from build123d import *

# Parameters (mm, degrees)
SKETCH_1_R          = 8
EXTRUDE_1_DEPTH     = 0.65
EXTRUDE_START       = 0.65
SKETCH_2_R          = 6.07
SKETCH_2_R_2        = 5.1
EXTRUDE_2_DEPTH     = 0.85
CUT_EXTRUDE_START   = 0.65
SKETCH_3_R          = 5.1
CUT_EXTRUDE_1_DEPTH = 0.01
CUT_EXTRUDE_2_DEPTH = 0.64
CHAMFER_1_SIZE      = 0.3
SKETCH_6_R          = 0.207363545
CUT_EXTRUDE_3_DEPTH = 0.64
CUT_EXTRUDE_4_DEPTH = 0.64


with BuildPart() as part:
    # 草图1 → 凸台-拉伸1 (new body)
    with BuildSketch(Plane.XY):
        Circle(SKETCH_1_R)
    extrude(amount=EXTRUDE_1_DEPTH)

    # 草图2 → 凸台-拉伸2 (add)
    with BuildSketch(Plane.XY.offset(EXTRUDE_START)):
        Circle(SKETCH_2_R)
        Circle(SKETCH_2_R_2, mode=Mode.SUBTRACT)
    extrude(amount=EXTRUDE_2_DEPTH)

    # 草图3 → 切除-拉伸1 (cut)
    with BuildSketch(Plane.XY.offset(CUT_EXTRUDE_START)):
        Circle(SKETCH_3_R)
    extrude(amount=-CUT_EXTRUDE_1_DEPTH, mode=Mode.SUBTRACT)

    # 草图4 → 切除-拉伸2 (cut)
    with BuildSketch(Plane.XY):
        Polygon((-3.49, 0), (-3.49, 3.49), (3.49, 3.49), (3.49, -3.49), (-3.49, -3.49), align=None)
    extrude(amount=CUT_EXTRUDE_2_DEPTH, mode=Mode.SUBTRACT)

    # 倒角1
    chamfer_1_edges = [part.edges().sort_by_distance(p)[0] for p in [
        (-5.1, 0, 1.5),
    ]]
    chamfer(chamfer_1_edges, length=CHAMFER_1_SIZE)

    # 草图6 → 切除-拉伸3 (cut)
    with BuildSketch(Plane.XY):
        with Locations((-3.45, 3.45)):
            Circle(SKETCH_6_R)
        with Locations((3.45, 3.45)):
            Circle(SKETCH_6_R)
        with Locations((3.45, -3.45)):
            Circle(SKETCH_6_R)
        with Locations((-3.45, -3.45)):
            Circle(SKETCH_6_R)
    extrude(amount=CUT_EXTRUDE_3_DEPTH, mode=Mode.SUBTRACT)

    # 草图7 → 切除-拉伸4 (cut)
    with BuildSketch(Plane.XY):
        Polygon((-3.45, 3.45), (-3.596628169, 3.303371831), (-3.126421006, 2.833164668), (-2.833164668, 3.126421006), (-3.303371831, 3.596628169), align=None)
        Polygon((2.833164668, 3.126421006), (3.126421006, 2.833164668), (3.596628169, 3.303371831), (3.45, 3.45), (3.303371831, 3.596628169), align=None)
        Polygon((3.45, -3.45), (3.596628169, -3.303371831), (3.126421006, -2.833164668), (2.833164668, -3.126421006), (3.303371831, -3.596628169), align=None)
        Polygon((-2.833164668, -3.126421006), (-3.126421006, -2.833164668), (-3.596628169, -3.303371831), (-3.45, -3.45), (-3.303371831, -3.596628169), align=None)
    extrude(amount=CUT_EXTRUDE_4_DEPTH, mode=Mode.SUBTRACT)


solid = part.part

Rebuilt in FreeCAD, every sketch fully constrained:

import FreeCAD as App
import Part
import Sketcher
Q = App.Units.Quantity


def edges_at(feature, points):
    """Names of the edges that pass closest to the given points."""
    edges = feature.Shape.Edges
    near = lambda p: min(range(len(edges)), key=lambda i: edges[i].distToShape(Part.Vertex(*p))[0])
    return sorted({f"Edge{near(p) + 1}" for p in points})


def add_polygon(sketch, points):
    """Adds a closed chain of lines whose ends are joined by coincident constraints."""
    first, n = sketch.GeometryCount, len(points)
    for a, b in zip(points, points[1:] + points[:1]):
        sketch.addGeometry(Part.LineSegment(App.Vector(*a, 0), App.Vector(*b, 0)), False)
    for i in range(n):
        sketch.addConstraint(Sketcher.Constraint("Coincident", first + i, 2, first + (i + 1) % n, 1))

doc = App.newDocument("Part")
params = doc.addObject("Spreadsheet::Sheet", "Params")
for row, (alias, value) in enumerate([
    ("sketch1_diameter", "16 mm"),
    ("pad1_length", "0.65 mm"),
    ("sketch2_diameter", "10.2 mm"),
    ("sketch2_diameter2", "12.14 mm"),
    ("pad2_length", "0.85 mm"),
    ("sketch3_diameter", "10.2 mm"),
    ("pocket1_length", "0.01 mm"),
    ("sketch4_width", "6.98 mm"),
    ("pocket2_length", "0.64 mm"),
    ("chamfer_size", "0.3 mm"),
    ("pocket3_length", "0.64 mm"),
    ("pocket4_length", "0.64 mm"),
], start=1):
    params.set(f"A{row}", alias)
    params.set(f"B{row}", "=" + value)
    params.setAlias(f"B{row}", alias)

body = doc.addObject("PartDesign::Body", "Body")

sketch1 = body.newObject("Sketcher::SketchObject", "Sketch")
sketch1.AttachmentSupport = (doc.getObject("XY_Plane"), [""])
sketch1.MapMode = "FlatFace"
sketch1.addGeometry(Part.Circle(App.Vector(0, 0, 0), App.Vector(0, 0, 1), 8), False)
sketch1.addConstraint([
    Sketcher.Constraint("Coincident", 0, 3, -1, 1),
    Sketcher.Constraint("Diameter", 0, Q("16 mm")),
])
sketch1.setExpression("Constraints[1]", "Params.sketch1_diameter")
pad1 = body.newObject("PartDesign::Pad", "Pad")
pad1.Profile = sketch1
pad1.setExpression("Length", "Params.pad1_length")

sketch2 = body.newObject("Sketcher::SketchObject", "Sketch001")
sketch2.AttachmentSupport = (doc.getObject("XY_Plane"), [""])
sketch2.MapMode = "FlatFace"
sketch2.AttachmentOffset = App.Placement(App.Vector(0, 0, 0.65), App.Rotation())
sketch2.addGeometry([
    Part.Circle(App.Vector(0, 0, 0), App.Vector(0, 0, 1), 6.07),
    Part.Circle(App.Vector(0, 0, 0), App.Vector(0, 0, 1), 5.1),
], False)
sketch2.addConstraint([
    Sketcher.Constraint("Coincident", 0, 3, -1, 1),
    Sketcher.Constraint("Coincident", 1, 3, -1, 1),
    Sketcher.Constraint("Diameter", 1, Q("10.2 mm")),
    Sketcher.Constraint("Diameter", 0, Q("12.14 mm")),
])
sketch2.setExpression("Constraints[2]", "Params.sketch2_diameter")
sketch2.setExpression("Constraints[3]", "Params.sketch2_diameter2")
pad2 = body.newObject("PartDesign::Pad", "Pad001")
pad2.Profile = sketch2
pad2.setExpression("Length", "Params.pad2_length")

sketch3 = body.newObject("Sketcher::SketchObject", "Sketch002")
sketch3.AttachmentSupport = (doc.getObject("XY_Plane"), [""])
sketch3.MapMode = "FlatFace"
sketch3.AttachmentOffset = App.Placement(App.Vector(0, 0, 0.65), App.Rotation())
sketch3.addGeometry(Part.Circle(App.Vector(0, 0, 0), App.Vector(0, 0, 1), 5.1), False)
sketch3.addConstraint([
    Sketcher.Constraint("Coincident", 0, 3, -1, 1),
    Sketcher.Constraint("Diameter", 0, Q("10.2 mm")),
])
sketch3.setExpression("Constraints[1]", "Params.sketch3_diameter")
pocket1 = body.newObject("PartDesign::Pocket", "Pocket")
pocket1.Profile = sketch3
pocket1.setExpression("Length", "Params.pocket1_length")

sketch4 = body.newObject("Sketcher::SketchObject", "Sketch003")
sketch4.AttachmentSupport = (doc.getObject("XY_Plane"), [""])
sketch4.MapMode = "FlatFace"
add_polygon(sketch4, [(-3.49, 3.49), (-3.49, -3.49), (3.49, -3.49), (3.49, 3.49)])
sketch4.addConstraint([
    Sketcher.Constraint("Vertical", 0),
    Sketcher.Constraint("Horizontal", 1),
    Sketcher.Constraint("Vertical", 2),
    Sketcher.Constraint("Horizontal", 3),
    Sketcher.Constraint("Symmetric", 0, 2, 2, 2, -1, 1),
    Sketcher.Constraint("Equal", 3, 0),
    Sketcher.Constraint("DistanceX", 1, 1, 1, 2, Q("6.98 mm")),
])
sketch4.setExpression("Constraints[10]", "Params.sketch4_width")
pocket2 = body.newObject("PartDesign::Pocket", "Pocket001")
pocket2.Profile = sketch4
pocket2.setExpression("Length", "Params.pocket2_length")
pocket2.Reversed = True
doc.recompute()

chamfer = body.newObject("PartDesign::Chamfer", "Chamfer")
chamfer.Base = (pocket2, edges_at(pocket2, [(-5.1, 0, 1.5)]))
chamfer.setExpression("Size", "Params.chamfer_size")

sketch5 = body.newObject("Sketcher::SketchObject", "Sketch004")
sketch5.AttachmentSupport = (doc.getObject("XY_Plane"), [""])
sketch5.MapMode = "FlatFace"
sketch5.addGeometry([
    Part.Circle(App.Vector(-3.45, 3.45, 0), App.Vector(0, 0, 1), 0.207364),
    Part.Circle(App.Vector(3.45, 3.45, 0), App.Vector(0, 0, 1), 0.207364),
    Part.Circle(App.Vector(3.45, -3.45, 0), App.Vector(0, 0, 1), 0.207364),
    Part.Circle(App.Vector(-3.45, -3.45, 0), App.Vector(0, 0, 1), 0.207364),
], False)
sketch5.addConstraint([
    Sketcher.Constraint("Equal", 0, 1),
    Sketcher.Constraint("Equal", 1, 2),
    Sketcher.Constraint("Equal", 2, 3),
    Sketcher.Constraint("Symmetric", 0, 3, 2, 3, -1, 1),
    Sketcher.Constraint("Symmetric", 1, 3, 3, 3, -1, 1),
    Sketcher.Constraint("Symmetric", 0, 3, 1, 3, -2),
    Sketcher.Constraint("DistanceX", 0, 3, 1, 3, Q("6.9 mm")),
    Sketcher.Constraint("DistanceY", 2, 3, 1, 3, Q("6.9 mm")),
    Sketcher.Constraint("Diameter", 0, Q("0.414727 mm")),
])
pocket3 = body.newObject("PartDesign::Pocket", "Pocket002")
pocket3.Profile = sketch5
pocket3.setExpression("Length", "Params.pocket3_length")
pocket3.Reversed = True

sketch6 = body.newObject("Sketcher::SketchObject", "Sketch005")
sketch6.AttachmentSupport = (doc.getObject("XY_Plane"), [""])
sketch6.MapMode = "FlatFace"
add_polygon(sketch6, [(-3.596628, 3.303372), (-3.126421, 2.833165), (-2.833165, 3.126421), (-3.303372, 3.596628)])
add_polygon(sketch6, [(2.833165, 3.126421), (3.126421, 2.833165), (3.596628, 3.303372), (3.303372, 3.596628)])
add_polygon(sketch6, [(3.596628, -3.303372), (3.126421, -2.833165), (2.833165, -3.126421), (3.303372, -3.596628)])
add_polygon(sketch6, [(-2.833165, -3.126421), (-3.126421, -2.833165), (-3.596628, -3.303372), (-3.303372, -3.596628)])
sketch6.addConstraint([
    Sketcher.Constraint("Symmetric", 0, 2, 8, 2, -1, 1),
    Sketcher.Constraint("Symmetric", 1, 2, 9, 2, -1, 1),
    Sketcher.Constraint("Symmetric", 2, 2, 10, 2, -1, 1),
    Sketcher.Constraint("Symmetric", 3, 2, 11, 2, -1, 1),
    Sketcher.Constraint("Symmetric", 4, 2, 12, 2, -1, 1),
    Sketcher.Constraint("Symmetric", 5, 2, 13, 2, -1, 1),
    Sketcher.Constraint("Symmetric", 6, 2, 14, 2, -1, 1),
    Sketcher.Constraint("Symmetric", 7, 2, 15, 2, -1, 1),
    Sketcher.Constraint("Symmetric", 0, 2, 4, 2, -2),
    Sketcher.Constraint("Symmetric", 3, 2, 5, 2, -2),
    Sketcher.Constraint("Symmetric", 2, 2, 6, 2, -2),
    Sketcher.Constraint("Symmetric", 1, 2, 7, 2, -2),
    Sketcher.Constraint("Perpendicular", 0, 1),
    Sketcher.Constraint("Perpendicular", 1, 2),
    Sketcher.Constraint("Perpendicular", 2, 3),
    Sketcher.Constraint("Perpendicular", 3, 4),
    Sketcher.Constraint("DistanceX", 2, 2, 5, 2, Q("6.9 mm")),
    Sketcher.Constraint("DistanceY", 10, 2, 5, 2, Q("6.9 mm")),
    Sketcher.Constraint("DistanceX", 0, 2, -1, 1, Q("3.126421 mm")),
    Sketcher.Constraint("DistanceX", 2, 2, -1, 1, Q("3.303372 mm")),
])
pocket4 = body.newObject("PartDesign::Pocket", "Pocket003")
pocket4.Profile = sketch6
pocket4.setExpression("Length", "Params.pocket4_length")
pocket4.Reversed = True

doc.recompute()
